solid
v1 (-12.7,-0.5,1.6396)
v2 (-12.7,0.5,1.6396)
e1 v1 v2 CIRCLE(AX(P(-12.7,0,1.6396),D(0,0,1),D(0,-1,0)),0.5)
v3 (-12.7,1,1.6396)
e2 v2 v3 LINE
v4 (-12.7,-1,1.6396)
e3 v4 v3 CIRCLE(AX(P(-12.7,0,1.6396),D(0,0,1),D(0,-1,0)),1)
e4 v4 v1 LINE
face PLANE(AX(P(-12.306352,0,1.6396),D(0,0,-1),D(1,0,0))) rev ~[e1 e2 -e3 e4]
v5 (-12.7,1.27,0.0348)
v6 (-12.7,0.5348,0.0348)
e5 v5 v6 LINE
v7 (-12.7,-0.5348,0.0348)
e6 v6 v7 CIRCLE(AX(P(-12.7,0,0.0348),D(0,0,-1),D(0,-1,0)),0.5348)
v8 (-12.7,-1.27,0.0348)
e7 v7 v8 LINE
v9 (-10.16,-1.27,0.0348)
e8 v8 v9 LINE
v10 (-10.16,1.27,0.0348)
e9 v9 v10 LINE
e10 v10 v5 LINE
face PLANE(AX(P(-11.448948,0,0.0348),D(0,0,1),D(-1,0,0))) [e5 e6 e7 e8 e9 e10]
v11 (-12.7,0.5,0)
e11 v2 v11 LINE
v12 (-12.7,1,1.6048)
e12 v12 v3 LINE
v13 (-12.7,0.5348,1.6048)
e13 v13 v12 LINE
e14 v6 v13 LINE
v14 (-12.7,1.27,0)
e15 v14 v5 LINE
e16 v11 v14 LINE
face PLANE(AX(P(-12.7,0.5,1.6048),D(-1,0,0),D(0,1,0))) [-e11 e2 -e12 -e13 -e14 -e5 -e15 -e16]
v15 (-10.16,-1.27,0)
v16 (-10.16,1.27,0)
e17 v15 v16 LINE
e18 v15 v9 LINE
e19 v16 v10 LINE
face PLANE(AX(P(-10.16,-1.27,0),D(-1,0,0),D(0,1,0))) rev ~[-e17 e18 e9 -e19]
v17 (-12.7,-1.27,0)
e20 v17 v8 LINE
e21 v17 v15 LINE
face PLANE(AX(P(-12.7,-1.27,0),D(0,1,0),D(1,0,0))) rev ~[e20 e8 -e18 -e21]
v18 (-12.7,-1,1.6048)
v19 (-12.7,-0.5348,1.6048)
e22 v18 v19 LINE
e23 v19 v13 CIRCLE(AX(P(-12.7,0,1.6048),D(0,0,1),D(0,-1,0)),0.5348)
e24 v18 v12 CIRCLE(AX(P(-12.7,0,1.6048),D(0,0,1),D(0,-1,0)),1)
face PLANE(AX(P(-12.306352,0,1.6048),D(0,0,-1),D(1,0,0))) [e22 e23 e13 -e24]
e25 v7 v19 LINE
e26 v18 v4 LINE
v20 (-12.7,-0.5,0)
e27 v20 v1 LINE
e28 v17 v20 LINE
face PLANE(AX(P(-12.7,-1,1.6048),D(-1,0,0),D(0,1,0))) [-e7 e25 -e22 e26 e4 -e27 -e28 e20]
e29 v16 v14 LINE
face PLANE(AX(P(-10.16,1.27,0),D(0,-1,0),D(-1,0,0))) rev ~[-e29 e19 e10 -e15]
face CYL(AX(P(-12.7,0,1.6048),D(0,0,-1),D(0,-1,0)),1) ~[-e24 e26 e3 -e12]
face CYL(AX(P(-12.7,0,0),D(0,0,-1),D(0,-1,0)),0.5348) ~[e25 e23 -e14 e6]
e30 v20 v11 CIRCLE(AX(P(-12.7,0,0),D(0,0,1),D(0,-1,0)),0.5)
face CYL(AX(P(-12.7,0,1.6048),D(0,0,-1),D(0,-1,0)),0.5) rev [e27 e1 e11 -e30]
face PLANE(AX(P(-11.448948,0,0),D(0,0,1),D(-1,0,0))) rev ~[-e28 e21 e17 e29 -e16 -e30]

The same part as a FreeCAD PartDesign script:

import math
import FreeCAD as App
import Part
import Sketcher
from FreeCAD import Vector

doc = App.newDocument("Part")
body = doc.addObject("PartDesign::Body", "Body")

sketch1 = body.newObject("Sketcher::SketchObject", "Sketch")
sketch1.AttachmentSupport = (doc.getObject("XY_Plane"), [""])
sketch1.MapMode = "FlatFace"
sketch1.addGeometry([
    Part.LineSegment(Vector(-2.5, 1.3, 0), Vector(-2.5, -1.3, 0)),
    Part.LineSegment(Vector(-2.5, -1.3, 0), Vector(0, -1.3, 0)),
    Part.LineSegment(Vector(0, -1.3, 0), Vector(0, -0.5, 0)),
    Part.ArcOfCircle(Part.Circle(Vector(0, 0, 0), Vector(0, 0, 1), 0.5), math.radians(90), math.radians(270)),
    Part.LineSegment(Vector(0, 0.5, 0), Vector(0, 1.3, 0)),
    Part.LineSegment(Vector(0, 1.3, 0), Vector(-2.5, 1.3, 0)),
], False)
sketch1.addConstraint([
    Sketcher.Constraint("Coincident", 0, 2, 1, 1),
    Sketcher.Constraint("Coincident", 1, 2, 2, 1),
    Sketcher.Constraint("Coincident", 2, 2, 3, 2),
    Sketcher.Constraint("Coincident", 3, 1, 4, 1),
    Sketcher.Constraint("Coincident", 4, 2, 5, 1),
    Sketcher.Constraint("Coincident", 5, 2, 0, 1),
    Sketcher.Constraint("Vertical", 0),
    Sketcher.Constraint("Horizontal", 1),
    Sketcher.Constraint("Vertical", 2),
    Sketcher.Constraint("Vertical", 4),
    Sketcher.Constraint("Horizontal", 5),
    Sketcher.Constraint("Coincident", 3, 3, -1, 1),
    Sketcher.Constraint("Symmetric", 1, 2, 4, 2, -1, 1),
    Sketcher.Constraint("PointOnObject", 1, 2, -2),
    Sketcher.Constraint("Equal", 5, 0),
    Sketcher.Constraint("Radius", 3, 0.5),
    Sketcher.Constraint("DistanceX", 1, 1, 1, 2, 2.54),
])
pad1 = body.newObject("PartDesign::Pad", "Pad")
pad1.Profile = sketch1
pad1.Length = 0.0348

sketch2 = body.newObject("Sketcher::SketchObject", "Sketch001")
sketch2.AttachmentSupport = (doc.getObject("XY_Plane"), [""])
sketch2.MapMode = "FlatFace"
sketch2.addGeometry([
    Part.ArcOfCircle(Part.Circle(Vector(0, 0, 0), Vector(0, 0, 1), 0.535), math.radians(90), math.radians(270)),
    Part.LineSegment(Vector(0, -0.535, 0), Vector(0, -0.5, 0)),
    Part.ArcOfCircle(Part.Circle(Vector(0, 0, 0), Vector(0, 0, 1), 0.5), math.radians(90), math.radians(270)),
    Part.LineSegment(Vector(0, 0.5, 0), Vector(0, 0.535, 0)),
], False)
sketch2.addConstraint([
    Sketcher.Constraint("Coincident", 0, 2, 1, 1),
    Sketcher.Constraint("Coincident", 1, 2, 2, 2),
    Sketcher.Constraint("Coincident", 2, 1, 3, 1),
    Sketcher.Constraint("Coincident", 3, 2, 0, 1),
    Sketcher.Constraint("Vertical", 1),
    Sketcher.Constraint("Vertical", 3),
    Sketcher.Constraint("Coincident", 0, 3, -1, 1),
    Sketcher.Constraint("Coincident", 2, 3, -1, 1),
    Sketcher.Constraint("PointOnObject", 0, 2, -2),
    Sketcher.Constraint("PointOnObject", 2, 1, -2),
    Sketcher.Constraint("Radius", 2, 0.5),
    Sketcher.Constraint("Radius", 0, 0.5348),
])
pad2 = body.newObject("PartDesign::Pad", "Pad001")
pad2.Profile = sketch2
pad2.Length = 1.6048

sketch3 = body.newObject("Sketcher::SketchObject", "Sketch002")
sketch3.AttachmentSupport = (doc.getObject("XY_Plane"), [""])
sketch3.MapMode = "FlatFace"
sketch3.AttachmentOffset = App.Placement(Vector(0, 0, 1.6048), App.Rotation())
sketch3.addGeometry([
    Part.ArcOfCircle(Part.Circle(Vector(0, 0, 0), Vector(0, 0, 1), 0.5), math.radians(90), math.radians(270)),
    Part.LineSegment(Vector(0, 0.5, 0), Vector(0, 1, 0)),
    Part.ArcOfCircle(Part.Circle(Vector(0, 0, 0), Vector(0, 0, 1), 1), math.radians(90), math.radians(270)),
    Part.LineSegment(Vector(0, -1, 0), Vector(0, -0.5, 0)),
], False)
sketch3.addConstraint([
    Sketcher.Constraint("Coincident", 0, 1, 1, 1),
    Sketcher.Constraint("Coincident", 1, 2, 2, 1),
    Sketcher.Constraint("Coincident", 2, 2, 3, 1),
    Sketcher.Constraint("Coincident", 3, 2, 0, 2),
    Sketcher.Constraint("Vertical", 1),
    Sketcher.Constraint("Vertical", 3),
    Sketcher.Constraint("Coincident", 0, 3, -1, 1),
    Sketcher.Constraint("Coincident", 2, 3, -1, 1),
    Sketcher.Constraint("PointOnObject", 0, 1, -2),
    Sketcher.Constraint("PointOnObject", 2, 2, -2),
    Sketcher.Constraint("Radius", 2, 1.0),
    Sketcher.Constraint("Radius", 0, 0.5),
])
pad3 = body.newObject("PartDesign::Pad", "Pad002")
pad3.Profile = sketch3
pad3.Length = 0.0348
body2 = doc.addObject("PartDesign::Body", "Body001")
doc.recompute()

body.Placement = App.Placement(Vector(-12.7, 0, 0), App.Rotation(Vector(0, 0, 1), 180))
boolean = body2.newObject("PartDesign::Boolean", "Boolean")
boolean.Type = "Fuse"
boolean.addObjects([body])

doc.recompute()
